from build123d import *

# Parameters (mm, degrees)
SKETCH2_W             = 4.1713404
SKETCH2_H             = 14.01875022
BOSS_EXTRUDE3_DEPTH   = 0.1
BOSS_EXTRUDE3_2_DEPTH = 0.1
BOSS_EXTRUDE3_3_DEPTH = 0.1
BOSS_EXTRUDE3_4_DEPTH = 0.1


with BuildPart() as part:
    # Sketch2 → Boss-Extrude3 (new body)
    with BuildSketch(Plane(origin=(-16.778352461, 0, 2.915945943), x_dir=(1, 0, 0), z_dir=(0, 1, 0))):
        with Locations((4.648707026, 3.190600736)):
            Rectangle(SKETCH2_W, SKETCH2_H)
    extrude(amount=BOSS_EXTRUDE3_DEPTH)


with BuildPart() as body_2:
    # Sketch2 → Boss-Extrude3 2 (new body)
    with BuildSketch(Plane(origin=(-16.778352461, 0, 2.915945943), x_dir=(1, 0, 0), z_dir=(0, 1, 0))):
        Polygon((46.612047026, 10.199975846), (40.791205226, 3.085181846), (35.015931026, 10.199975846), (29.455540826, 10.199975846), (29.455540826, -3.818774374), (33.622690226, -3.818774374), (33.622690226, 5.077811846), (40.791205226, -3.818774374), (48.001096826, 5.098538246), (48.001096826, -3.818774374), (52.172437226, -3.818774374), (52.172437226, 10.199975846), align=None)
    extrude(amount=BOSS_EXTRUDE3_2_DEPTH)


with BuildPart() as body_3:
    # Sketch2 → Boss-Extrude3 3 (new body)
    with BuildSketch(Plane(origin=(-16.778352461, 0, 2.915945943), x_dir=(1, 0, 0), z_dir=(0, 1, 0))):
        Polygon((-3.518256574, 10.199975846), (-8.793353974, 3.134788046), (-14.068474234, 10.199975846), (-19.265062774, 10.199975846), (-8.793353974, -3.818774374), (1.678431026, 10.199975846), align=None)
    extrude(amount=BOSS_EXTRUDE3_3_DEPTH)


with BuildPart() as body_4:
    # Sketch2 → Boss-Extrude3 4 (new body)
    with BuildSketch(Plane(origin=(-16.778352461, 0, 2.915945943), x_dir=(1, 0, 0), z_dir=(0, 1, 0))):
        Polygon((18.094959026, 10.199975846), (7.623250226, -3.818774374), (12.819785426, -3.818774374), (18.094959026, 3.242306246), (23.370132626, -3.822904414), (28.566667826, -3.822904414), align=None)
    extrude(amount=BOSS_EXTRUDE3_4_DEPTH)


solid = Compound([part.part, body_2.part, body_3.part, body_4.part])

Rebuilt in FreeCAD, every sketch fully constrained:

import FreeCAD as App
import Part
import Sketcher
from FreeCAD import Vector
Q = App.Units.Quantity


def add_polygon(sketch, points):
    """Adds a closed chain of lines whose ends are joined by coincident constraints."""
    first, n = sketch.GeometryCount, len(points)
    for a, b in zip(points, points[1:] + points[:1]):
        sketch.addGeometry(Part.LineSegment(App.Vector(*a, 0), App.Vector(*b, 0)), False)
    for i in range(n):
        sketch.addConstraint(Sketcher.Constraint("Coincident", first + i, 2, first + (i + 1) % n, 1))

doc = App.newDocument("Part")
body = doc.addObject("PartDesign::Body", "Body")

sketch1 = doc.addObject("Sketcher::SketchObject", "Sketch")
body.addObject(sketch1)
sketch1.AttachmentSupport = (doc.XZ_Plane, [""])
sketch1.MapMode = "FlatFace"
add_polygon(sketch1, [(-14.2, -7.3), (-14.2, 6.7), (-10, 6.7), (-10, -7.3)])
sketch1.addConstraint([
    Sketcher.Constraint("Vertical", 0),
    Sketcher.Constraint("Horizontal", 1),
    Sketcher.Constraint("Vertical", 2),
    Sketcher.Constraint("Horizontal", 3),
    Sketcher.Constraint("DistanceX", 1, 1, 1, 2, Q("4.17134 mm")),
    Sketcher.Constraint("DistanceY", 0, 1, 0, 2, Q("14.01875 mm")),
    Sketcher.Constraint("DistanceY", -1, 1, 0, 2, Q("6.73472 mm")),
    Sketcher.Constraint("DistanceX", 0, 2, -1, 1, Q("14.215316 mm")),
])
pad1 = doc.addObject("PartDesign::Pad", "Pad")
body.addObject(pad1)
pad1.Profile = sketch1
pad1.Length = 0.1
pad1.Reversed = True
body2 = doc.addObject("PartDesign::Body", "Body001")

sketch2 = doc.addObject("Sketcher::SketchObject", "Sketch001")
body2.addObject(sketch2)
sketch2.AttachmentSupport = (doc.getObject("XZ_Plane001"), [""])
sketch2.MapMode = "FlatFace"
add_polygon(sketch2, [(29.8, -7.3), (24, -0.2), (18.2, -7.3), (12.7, -7.3), (12.7, 6.7), (16.8, 6.7), (16.8, -2.2), (24, 6.7), (31.2, -2.2), (31.2, 6.7), (35.4, 6.7), (35.4, -7.3)])
sketch2.addConstraint([
    Sketcher.Constraint("Horizontal", 2),
    Sketcher.Constraint("Vertical", 3),
    Sketcher.Constraint("Horizontal", 4),
    Sketcher.Constraint("Vertical", 5),
    Sketcher.Constraint("Vertical", 8),
    Sketcher.Constraint("Horizontal", 9),
    Sketcher.Constraint("Vertical", 10),
    Sketcher.Constraint("Horizontal", 11),
    Sketcher.Constraint("Horizontal", 4, 2, 6, 2),
    Sketcher.Constraint("Horizontal", 6, 2, 8, 2),
    Sketcher.Constraint("Horizontal", 2, 2, 10, 2),
    Sketcher.Constraint("Vertical", 0, 2, 6, 2),
    Sketcher.Constraint("Equal", 2, 11),
    Sketcher.Constraint("DistanceX", 2, 2, 2, 1, Q("5.56039 mm")),
    Sketcher.Constraint("DistanceX", 4, 1, 4, 2, Q("4.167149 mm")),
    Sketcher.Constraint("DistanceX", 9, 1, 9, 2, Q("4.17134 mm")),
    Sketcher.Constraint("DistanceY", 3, 1, 3, 2, Q("14.01875 mm")),
    Sketcher.Constraint("Distance", 7, Q("11.467389 mm")),
    Sketcher.Constraint("DistanceY", 5, 2, 5, 1, Q("8.896586 mm")),
    Sketcher.Constraint("DistanceY", 8, 1, 8, 2, Q("8.917313 mm")),
    Sketcher.Constraint("DistanceX", -1, 1, 1, 2, Q("18.237579 mm")),
    Sketcher.Constraint("DistanceY", 1, 2, -1, 1, Q("7.28403 mm")),
    Sketcher.Constraint("DistanceY", 5, 2, 0, 2, Q("1.99263 mm")),
    Sketcher.Constraint("Distance", 1, Q("9.163738 mm")),
])
pad2 = doc.addObject("PartDesign::Pad", "Pad001")
body2.addObject(pad2)
pad2.Profile = sketch2
pad2.Length = 0.1
pad2.Reversed = True
body3 = doc.addObject("PartDesign::Body", "Body002")

sketch3 = doc.addObject("Sketcher::SketchObject", "Sketch002")
body3.addObject(sketch3)
sketch3.AttachmentSupport = (doc.getObject("XZ_Plane002"), [""])
sketch3.MapMode = "FlatFace"
add_polygon(sketch3, [(-20, -7), (-26, 0), (-31, -7), (-36, -7), (-26, 7), (-15, -7)])
sketch3.addConstraint([
    Sketcher.Constraint("Horizontal", 2),
    Sketcher.Constraint("Horizontal", 5),
    Sketcher.Constraint("Horizontal", 2, 2, 4, 2),
    Sketcher.Constraint("Vertical", 0, 2, 3, 2),
    Sketcher.Constraint("DistanceX", 2, 2, 2, 1, Q("5.196589 mm")),
    Sketcher.Constraint("Distance", 0, Q("8.817229 mm")),
    Sketcher.Constraint("Distance", 3, Q("17.498058 mm")),
    Sketcher.Constraint("DistanceX", 5, 2, 5, 1, Q("5.196688 mm")),
    Sketcher.Constraint("DistanceY", 1, 2, -1, 1, Q("7.28403 mm")),
    Sketcher.Constraint("DistanceY", -1, 1, 3, 2, Q("6.73472 mm")),
    Sketcher.Constraint("DistanceX", 4, 2, -1, 1, Q("15.099921 mm")),
    Sketcher.Constraint("Distance", 1, Q("8.817243 mm")),
])
pad3 = doc.addObject("PartDesign::Pad", "Pad002")
body3.addObject(pad3)
pad3.Profile = sketch3
pad3.Length = 0.1
pad3.Reversed = True
body4 = doc.addObject("PartDesign::Body", "Body003")

sketch4 = doc.addObject("Sketcher::SketchObject", "Sketch003")
body4.addObject(sketch4)
sketch4.AttachmentSupport = (doc.getObject("XZ_Plane003"), [""])
sketch4.MapMode = "FlatFace"
add_polygon(sketch4, [(1, -7), (-9, 7), (-4, 7), (1, 0), (7, 7), (12, 7)])
sketch4.addConstraint([
    Sketcher.Constraint("Horizontal", 1),
    Sketcher.Constraint("Horizontal", 4),
    Sketcher.Constraint("Vertical", 2, 2, 5, 2),
    Sketcher.Constraint("Equal", 1, 4),
    Sketcher.Constraint("Distance", 0, Q("17.498058 mm")),
    Sketcher.Constraint("DistanceX", 1, 1, 1, 2, Q("5.196535 mm")),
    Sketcher.Constraint("DistanceY", -1, 1, 0, 2, Q("6.73472 mm")),
    Sketcher.Constraint("DistanceY", 2, 2, -1, 1, Q("0.32636 mm")),
    Sketcher.Constraint("DistanceX", -1, 1, 3, 2, Q("6.59178 mm")),
    Sketcher.Constraint("DistanceY", -1, 1, 3, 2, Q("6.73885 mm")),
    Sketcher.Constraint("DistanceY", 5, 2, -1, 1, Q("7.28403 mm")),
    Sketcher.Constraint("DistanceX", 2, 2, 4, 2, Q("10.471709 mm")),
])
pad4 = doc.addObject("PartDesign::Pad", "Pad003")
body4.addObject(pad4)
pad4.Profile = sketch4
pad4.Length = 0.1
pad4.Reversed = True

doc.recompute()
